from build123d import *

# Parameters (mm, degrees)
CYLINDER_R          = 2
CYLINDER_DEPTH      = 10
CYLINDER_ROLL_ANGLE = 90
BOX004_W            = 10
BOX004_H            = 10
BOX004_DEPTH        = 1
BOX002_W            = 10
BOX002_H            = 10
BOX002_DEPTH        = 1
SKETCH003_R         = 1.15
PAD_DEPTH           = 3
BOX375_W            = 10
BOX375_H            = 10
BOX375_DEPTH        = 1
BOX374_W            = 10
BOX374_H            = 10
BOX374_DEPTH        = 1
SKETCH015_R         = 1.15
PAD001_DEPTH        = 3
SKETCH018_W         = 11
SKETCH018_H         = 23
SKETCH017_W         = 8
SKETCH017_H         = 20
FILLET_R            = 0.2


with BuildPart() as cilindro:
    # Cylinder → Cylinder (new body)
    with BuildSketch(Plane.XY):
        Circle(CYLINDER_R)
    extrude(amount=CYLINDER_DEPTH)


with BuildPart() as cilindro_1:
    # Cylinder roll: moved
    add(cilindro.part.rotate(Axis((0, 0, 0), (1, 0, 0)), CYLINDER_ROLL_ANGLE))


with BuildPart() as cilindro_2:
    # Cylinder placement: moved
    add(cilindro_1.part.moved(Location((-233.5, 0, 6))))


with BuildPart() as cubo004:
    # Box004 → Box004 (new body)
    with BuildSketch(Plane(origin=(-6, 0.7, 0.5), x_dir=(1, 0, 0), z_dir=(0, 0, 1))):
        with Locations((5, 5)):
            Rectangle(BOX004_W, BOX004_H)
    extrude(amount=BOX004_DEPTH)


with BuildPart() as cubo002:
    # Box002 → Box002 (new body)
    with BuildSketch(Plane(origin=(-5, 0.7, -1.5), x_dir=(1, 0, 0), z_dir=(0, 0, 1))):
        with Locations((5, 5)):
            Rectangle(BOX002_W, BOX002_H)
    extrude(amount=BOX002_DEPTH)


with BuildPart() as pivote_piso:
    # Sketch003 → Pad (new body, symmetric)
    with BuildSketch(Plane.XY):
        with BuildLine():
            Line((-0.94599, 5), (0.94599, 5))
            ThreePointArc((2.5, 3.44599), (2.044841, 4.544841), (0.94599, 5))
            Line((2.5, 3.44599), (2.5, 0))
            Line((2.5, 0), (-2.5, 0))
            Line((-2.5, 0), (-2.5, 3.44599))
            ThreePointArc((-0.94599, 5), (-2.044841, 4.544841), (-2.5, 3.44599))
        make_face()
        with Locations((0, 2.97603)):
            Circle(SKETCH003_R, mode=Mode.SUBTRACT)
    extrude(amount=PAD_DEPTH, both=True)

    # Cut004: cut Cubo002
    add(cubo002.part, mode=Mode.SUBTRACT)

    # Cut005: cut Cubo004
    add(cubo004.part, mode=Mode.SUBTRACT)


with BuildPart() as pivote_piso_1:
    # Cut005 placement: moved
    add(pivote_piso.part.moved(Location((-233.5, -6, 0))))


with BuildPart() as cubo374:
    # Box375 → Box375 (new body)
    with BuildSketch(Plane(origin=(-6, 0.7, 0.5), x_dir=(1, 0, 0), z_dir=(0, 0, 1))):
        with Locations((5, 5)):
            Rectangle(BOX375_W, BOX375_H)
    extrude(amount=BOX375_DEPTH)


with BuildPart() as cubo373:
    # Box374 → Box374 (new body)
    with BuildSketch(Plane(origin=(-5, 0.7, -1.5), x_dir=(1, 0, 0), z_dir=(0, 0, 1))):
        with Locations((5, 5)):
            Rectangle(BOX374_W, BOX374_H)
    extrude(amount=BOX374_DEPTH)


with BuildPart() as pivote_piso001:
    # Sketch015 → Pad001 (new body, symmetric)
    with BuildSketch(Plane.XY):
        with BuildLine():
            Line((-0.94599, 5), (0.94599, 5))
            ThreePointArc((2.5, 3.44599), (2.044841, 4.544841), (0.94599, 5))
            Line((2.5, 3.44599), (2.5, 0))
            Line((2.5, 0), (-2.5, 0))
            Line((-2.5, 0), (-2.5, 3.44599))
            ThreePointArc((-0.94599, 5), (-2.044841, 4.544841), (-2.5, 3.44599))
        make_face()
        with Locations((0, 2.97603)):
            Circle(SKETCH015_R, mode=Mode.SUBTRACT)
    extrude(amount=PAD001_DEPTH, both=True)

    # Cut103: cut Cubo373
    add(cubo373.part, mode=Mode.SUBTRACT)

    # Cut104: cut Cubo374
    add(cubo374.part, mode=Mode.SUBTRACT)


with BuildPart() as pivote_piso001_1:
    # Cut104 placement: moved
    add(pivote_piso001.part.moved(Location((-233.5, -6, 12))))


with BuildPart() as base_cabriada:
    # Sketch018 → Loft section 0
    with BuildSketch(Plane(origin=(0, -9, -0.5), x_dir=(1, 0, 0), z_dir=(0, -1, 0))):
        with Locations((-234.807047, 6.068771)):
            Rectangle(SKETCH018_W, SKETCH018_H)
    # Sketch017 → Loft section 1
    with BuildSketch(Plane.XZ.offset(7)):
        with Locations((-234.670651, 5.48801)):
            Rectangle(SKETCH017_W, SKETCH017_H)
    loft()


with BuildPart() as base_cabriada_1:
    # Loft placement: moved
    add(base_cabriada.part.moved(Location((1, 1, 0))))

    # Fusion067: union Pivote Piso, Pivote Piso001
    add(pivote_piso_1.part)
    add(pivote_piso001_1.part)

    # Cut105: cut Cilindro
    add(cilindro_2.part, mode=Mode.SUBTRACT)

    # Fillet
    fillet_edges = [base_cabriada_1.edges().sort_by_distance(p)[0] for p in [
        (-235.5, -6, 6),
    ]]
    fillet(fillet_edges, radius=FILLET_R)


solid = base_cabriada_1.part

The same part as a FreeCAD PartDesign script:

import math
import FreeCAD as App
import Part
import Sketcher
from FreeCAD import Vector


def edges_at(feature, points):
    """Names of the edges that pass closest to the given points."""
    edges = feature.Shape.Edges
    near = lambda p: min(range(len(edges)), key=lambda i: edges[i].distToShape(Part.Vertex(*p))[0])
    return sorted({f"Edge{near(p) + 1}" for p in points})


def add_polygon(sketch, points):
    """Adds a closed chain of lines whose ends are joined by coincident constraints."""
    first, n = sketch.GeometryCount, len(points)
    for a, b in zip(points, points[1:] + points[:1]):
        sketch.addGeometry(Part.LineSegment(App.Vector(*a, 0), App.Vector(*b, 0)), False)
    for i in range(n):
        sketch.addConstraint(Sketcher.Constraint("Coincident", first + i, 2, first + (i + 1) % n, 1))

doc = App.newDocument("Part")
body = doc.addObject("PartDesign::Body", "Body")

sketch1 = doc.addObject("Sketcher::SketchObject", "Sketch")
body.addObject(sketch1)
sketch1.AttachmentSupport = (doc.XY_Plane, [""])
sketch1.MapMode = "FlatFace"
sketch1.addGeometry(Part.Circle(Vector(0, 0, 0), Vector(0, 0, 1), 2), False)
sketch1.addConstraint([
    Sketcher.Constraint("Coincident", 0, 3, -1, 1),
    Sketcher.Constraint("Diameter", 0, 4.0),
])
pad1 = doc.addObject("PartDesign::Pad", "Pad")
body.addObject(pad1)
pad1.Profile = sketch1
pad1.Length = 10
body2 = doc.addObject("PartDesign::Body", "Body001")
doc.recompute()

body.Placement = App.Placement(Vector(0, 0, 0), App.Rotation(Vector(1, 0, 0), 90))
boolean = doc.addObject("PartDesign::Boolean", "Boolean")
body2.addObject(boolean)
boolean.Type = "Fuse"
boolean.addObjects([body])
body3 = doc.addObject("PartDesign::Body", "Body002")
doc.recompute()

body2.Placement = App.Placement(Vector(-233.5, 0, 6), App.Rotation(Vector(0, 0, 1), 0))
boolean2 = doc.addObject("PartDesign::Boolean", "Boolean001")
body3.addObject(boolean2)
boolean2.Type = "Fuse"
boolean2.addObjects([body2])
body4 = doc.addObject("PartDesign::Body", "Body003")

sketch2 = doc.addObject("Sketcher::SketchObject", "Sketch001")
body4.addObject(sketch2)
sketch2.AttachmentSupport = (doc.getObject("XY_Plane003"), [""])
sketch2.MapMode = "FlatFace"
sketch2.AttachmentOffset = App.Placement(Vector(0, 0, 0.5), App.Rotation())
add_polygon(sketch2, [(-6, 11), (-6, 1), (4, 1), (4, 11)])
sketch2.addConstraint([
    Sketcher.Constraint("Vertical", 0),
    Sketcher.Constraint("Horizontal", 1),
    Sketcher.Constraint("Vertical", 2),
    Sketcher.Constraint("Horizontal", 3),
    Sketcher.Constraint("Equal", 3, 0),
    Sketcher.Constraint("DistanceX", 1, 1, 1, 2, 10.0),
    Sketcher.Constraint("DistanceX", 0, 2, -1, 1, 6.0),
    Sketcher.Constraint("DistanceY", -1, 1, 0, 2, 0.7),
])
pad2 = doc.addObject("PartDesign::Pad", "Pad001")
body4.addObject(pad2)
pad2.Profile = sketch2
pad2.Length = 1
body5 = doc.addObject("PartDesign::Body", "Body004")

sketch3 = doc.addObject("Sketcher::SketchObject", "Sketch002")
body5.addObject(sketch3)
sketch3.AttachmentSupport = (doc.getObject("XY_Plane004"), [""])
sketch3.MapMode = "FlatFace"
sketch3.AttachmentOffset = App.Placement(Vector(0, 0, -1.5), App.Rotation())
add_polygon(sketch3, [(-5, 11), (-5, 1), (5, 1), (5, 11)])
sketch3.addConstraint([
    Sketcher.Constraint("Vertical", 0),
    Sketcher.Constraint("Horizontal", 1),
    Sketcher.Constraint("Vertical", 2),
    Sketcher.Constraint("Horizontal", 3),
    Sketcher.Constraint("Equal", 3, 0),
    Sketcher.Constraint("DistanceX", 1, 1, 1, 2, 10.0),
    Sketcher.Constraint("DistanceX", 0, 2, -1, 1, 5.0),
    Sketcher.Constraint("DistanceY", -1, 1, 0, 2, 0.7),
])
pad3 = doc.addObject("PartDesign::Pad", "Pad002")
body5.addObject(pad3)
pad3.Profile = sketch3
pad3.Length = 1
body6 = doc.addObject("PartDesign::Body", "Body005")

sketch4 = doc.addObject("Sketcher::SketchObject", "Sketch003")
body6.addObject(sketch4)
sketch4.AttachmentSupport = (doc.getObject("XY_Plane005"), [""])
sketch4.MapMode = "FlatFace"
sketch4.addGeometry([
    Part.LineSegment(Vector(0.9, 5, 0), Vector(-0.9, 5, 0)),
    Part.ArcOfCircle(Part.Circle(Vector(-0.9, 3.4, 0), Vector(0, 0, 1), 1.6), math.radians(90), math.radians(180)),
    Part.LineSegment(Vector(-2.5, 3.4, 0), Vector(-2.5, 0, 0)),
    Part.LineSegment(Vector(-2.5, 0, 0), Vector(2.5, 0, 0)),
    Part.LineSegment(Vector(2.5, 0, 0), Vector(2.5, 3.4, 0)),
    Part.ArcOfCircle(Part.Circle(Vector(0.9, 3.4, 0), Vector(0, 0, 1), 1.6), math.radians(0), math.radians(90)),
    Part.Circle(Vector(0, 3, 0), Vector(0, 0, 1), 1.1),
], False)
sketch4.addConstraint([
    Sketcher.Constraint("Tangent", 0, 2, 1, 1),
    Sketcher.Constraint("Tangent", 1, 2, 2, 1),
    Sketcher.Constraint("Coincident", 2, 2, 3, 1),
    Sketcher.Constraint("Coincident", 3, 2, 4, 1),
    Sketcher.Constraint("Tangent", 4, 2, 5, 1),
    Sketcher.Constraint("Tangent", 5, 2, 0, 1),
    Sketcher.Constraint("Horizontal", 0),
    Sketcher.Constraint("Vertical", 2),
    Sketcher.Constraint("Horizontal", 3),
    Sketcher.Constraint("Vertical", 4),
    Sketcher.Constraint("Equal", 1, 5),
    Sketcher.Constraint("Symmetric", 2, 2, 3, 2, -1, 1),
    Sketcher.Constraint("PointOnObject", 6, 3, -2),
    Sketcher.Constraint("Diameter", 6, 2.3),
    Sketcher.Constraint("DistanceX", 3, 1, 3, 2, 5.0),
    Sketcher.Constraint("DistanceY", -1, 1, 0, 2, 5.0),
    Sketcher.Constraint("Radius", 1, 1.55401),
    Sketcher.Constraint("DistanceY", -1, 1, 6, 3, 2.97603),
])
pad4 = doc.addObject("PartDesign::Pad", "Pad003")
body6.addObject(pad4)
pad4.Profile = sketch4
pad4.Length = 6
pad4.Midplane = True
doc.recompute()

boolean3 = doc.addObject("PartDesign::Boolean", "Boolean002")
body6.addObject(boolean3)
boolean3.Type = "Cut"
boolean3.addObjects([body5])
doc.recompute()

boolean4 = doc.addObject("PartDesign::Boolean", "Boolean003")
body6.addObject(boolean4)
boolean4.Type = "Cut"
boolean4.addObjects([body4])
body7 = doc.addObject("PartDesign::Body", "Body006")
doc.recompute()

body6.Placement = App.Placement(Vector(-233.5, -6, 0), App.Rotation(Vector(0, 0, 1), 0))
boolean5 = doc.addObject("PartDesign::Boolean", "Boolean004")
body7.addObject(boolean5)
boolean5.Type = "Fuse"
boolean5.addObjects([body6])
body8 = doc.addObject("PartDesign::Body", "Body007")

sketch5 = doc.addObject("Sketcher::SketchObject", "Sketch004")
body8.addObject(sketch5)
sketch5.AttachmentSupport = (doc.getObject("XY_Plane007"), [""])
sketch5.MapMode = "FlatFace"
sketch5.AttachmentOffset = App.Placement(Vector(0, 0, 0.5), App.Rotation())
add_polygon(sketch5, [(-6, 11), (-6, 1), (4, 1), (4, 11)])
sketch5.addConstraint([
    Sketcher.Constraint("Vertical", 0),
    Sketcher.Constraint("Horizontal", 1),
    Sketcher.Constraint("Vertical", 2),
    Sketcher.Constraint("Horizontal", 3),
    Sketcher.Constraint("Equal", 3, 0),
    Sketcher.Constraint("DistanceX", 1, 1, 1, 2, 10.0),
    Sketcher.Constraint("DistanceX", 0, 2, -1, 1, 6.0),
    Sketcher.Constraint("DistanceY", -1, 1, 0, 2, 0.7),
])
pad5 = doc.addObject("PartDesign::Pad", "Pad004")
body8.addObject(pad5)
pad5.Profile = sketch5
pad5.Length = 1
body9 = doc.addObject("PartDesign::Body", "Body008")

sketch6 = doc.addObject("Sketcher::SketchObject", "Sketch005")
body9.addObject(sketch6)
sketch6.AttachmentSupport = (doc.getObject("XY_Plane008"), [""])
sketch6.MapMode = "FlatFace"
sketch6.AttachmentOffset = App.Placement(Vector(0, 0, -1.5), App.Rotation())
add_polygon(sketch6, [(-5, 11), (-5, 1), (5, 1), (5, 11)])
sketch6.addConstraint([
    Sketcher.Constraint("Vertical", 0),
    Sketcher.Constraint("Horizontal", 1),
    Sketcher.Constraint("Vertical", 2),
    Sketcher.Constraint("Horizontal", 3),
    Sketcher.Constraint("Equal", 3, 0),
    Sketcher.Constraint("DistanceX", 1, 1, 1, 2, 10.0),
    Sketcher.Constraint("DistanceX", 0, 2, -1, 1, 5.0),
    Sketcher.Constraint("DistanceY", -1, 1, 0, 2, 0.7),
])
pad6 = doc.addObject("PartDesign::Pad", "Pad005")
body9.addObject(pad6)
pad6.Profile = sketch6
pad6.Length = 1
body10 = doc.addObject("PartDesign::Body", "Body009")

sketch7 = doc.addObject("Sketcher::SketchObject", "Sketch006")
body10.addObject(sketch7)
sketch7.AttachmentSupport = (doc.getObject("XY_Plane009"), [""])
sketch7.MapMode = "FlatFace"
sketch7.addGeometry([
    Part.LineSegment(Vector(0.9, 5, 0), Vector(-0.9, 5, 0)),
    Part.ArcOfCircle(Part.Circle(Vector(-0.9, 3.4, 0), Vector(0, 0, 1), 1.6), math.radians(90), math.radians(180)),
    Part.LineSegment(Vector(-2.5, 3.4, 0), Vector(-2.5, 0, 0)),
    Part.LineSegment(Vector(-2.5, 0, 0), Vector(2.5, 0, 0)),
    Part.LineSegment(Vector(2.5, 0, 0), Vector(2.5, 3.4, 0)),
    Part.ArcOfCircle(Part.Circle(Vector(0.9, 3.4, 0), Vector(0, 0, 1), 1.6), math.radians(0), math.radians(90)),
    Part.Circle(Vector(0, 3, 0), Vector(0, 0, 1), 1.1),
], False)
sketch7.addConstraint([
    Sketcher.Constraint("Tangent", 0, 2, 1, 1),
    Sketcher.Constraint("Tangent", 1, 2, 2, 1),
    Sketcher.Constraint("Coincident", 2, 2, 3, 1),
    Sketcher.Constraint("Coincident", 3, 2, 4, 1),
    Sketcher.Constraint("Tangent", 4, 2, 5, 1),
    Sketcher.Constraint("Tangent", 5, 2, 0, 1),
    Sketcher.Constraint("Horizontal", 0),
    Sketcher.Constraint("Vertical", 2),
    Sketcher.Constraint("Horizontal", 3),
    Sketcher.Constraint("Vertical", 4),
    Sketcher.Constraint("Equal", 1, 5),
    Sketcher.Constraint("Symmetric", 2, 2, 3, 2, -1, 1),
    Sketcher.Constraint("PointOnObject", 6, 3, -2),
    Sketcher.Constraint("Diameter", 6, 2.3),
    Sketcher.Constraint("DistanceX", 3, 1, 3, 2, 5.0),
    Sketcher.Constraint("DistanceY", -1, 1, 0, 2, 5.0),
    Sketcher.Constraint("Radius", 1, 1.55401),
    Sketcher.Constraint("DistanceY", -1, 1, 6, 3, 2.97603),
])
pad7 = doc.addObject("PartDesign::Pad", "Pad006")
body10.addObject(pad7)
pad7.Profile = sketch7
pad7.Length = 6
pad7.Midplane = True
doc.recompute()

boolean6 = doc.addObject("PartDesign::Boolean", "Boolean005")
body10.addObject(boolean6)
boolean6.Type = "Cut"
boolean6.addObjects([body9])
doc.recompute()

boolean7 = doc.addObject("PartDesign::Boolean", "Boolean006")
body10.addObject(boolean7)
boolean7.Type = "Cut"
boolean7.addObjects([body8])
body11 = doc.addObject("PartDesign::Body", "Body010")
doc.recompute()

body10.Placement = App.Placement(Vector(-233.5, -6, 12), App.Rotation(Vector(0, 0, 1), 0))
boolean8 = doc.addObject("PartDesign::Boolean", "Boolean007")
body11.addObject(boolean8)
boolean8.Type = "Fuse"
boolean8.addObjects([body10])
body12 = doc.addObject("PartDesign::Body", "Body011")

sketch8 = doc.addObject("Sketcher::SketchObject", "Sketch007")
body12.addObject(sketch8)
sketch8.AttachmentSupport = (doc.getObject("XZ_Plane011"), [""])
sketch8.MapMode = "FlatFace"
sketch8.AttachmentOffset = App.Placement(Vector(0, 0, 9), App.Rotation())
add_polygon(sketch8, [(-240, 17), (-240, -6), (-229, -6), (-229, 17)])
sketch8.addConstraint([
    Sketcher.Constraint("Vertical", 0),
    Sketcher.Constraint("Horizontal", 1),
    Sketcher.Constraint("Vertical", 2),
    Sketcher.Constraint("Horizontal", 3),
    Sketcher.Constraint("DistanceX", 1, 1, 1, 2, 11.0),
    Sketcher.Constraint("DistanceY", 0, 2, 0, 1, 23.0),
    Sketcher.Constraint("DistanceY", 0, 2, -1, 1, 5.931229),
    Sketcher.Constraint("DistanceX", 0, 2, -1, 1, 240.307047),
])

sketch9 = doc.addObject("Sketcher::SketchObject", "Sketch008")
body12.addObject(sketch9)
sketch9.AttachmentSupport = (doc.getObject("XZ_Plane011"), [""])
sketch9.MapMode = "FlatFace"
sketch9.AttachmentOffset = App.Placement(Vector(0, 0, 7), App.Rotation())
add_polygon(sketch9, [(-239, 15), (-239, -5), (-231, -5), (-231, 15)])
sketch9.addConstraint([
    Sketcher.Constraint("Vertical", 0),
    Sketcher.Constraint("Horizontal", 1),
    Sketcher.Constraint("Vertical", 2),
    Sketcher.Constraint("Horizontal", 3),
    Sketcher.Constraint("DistanceX", 1, 1, 1, 2, 8.0),
    Sketcher.Constraint("DistanceY", 0, 2, 0, 1, 20.0),
    Sketcher.Constraint("DistanceX", 0, 2, -1, 1, 238.670651),
    Sketcher.Constraint("DistanceY", 0, 2, -1, 1, 4.51199),
])

additiveloft = doc.addObject("PartDesign::AdditiveLoft", "AdditiveLoft")
body12.addObject(additiveloft)
additiveloft.Profile = sketch8
additiveloft.Sections = [sketch9]
body13 = doc.addObject("PartDesign::Body", "Body012")
doc.recompute()

body12.Placement = App.Placement(Vector(1, 1, 0), App.Rotation(Vector(0, 0, 1), 0))
boolean9 = doc.addObject("PartDesign::Boolean", "Boolean008")
body13.addObject(boolean9)
boolean9.Type = "Fuse"
boolean9.addObjects([body12])
doc.recompute()

boolean10 = doc.addObject("PartDesign::Boolean", "Boolean009")
body13.addObject(boolean10)
boolean10.Type = "Fuse"
boolean10.addObjects([body7])
doc.recompute()

boolean11 = doc.addObject("PartDesign::Boolean", "Boolean010")
body13.addObject(boolean11)
boolean11.Type = "Fuse"
boolean11.addObjects([body11])
doc.recompute()

boolean12 = doc.addObject("PartDesign::Boolean", "Boolean011")
body13.addObject(boolean12)
boolean12.Type = "Cut"
boolean12.addObjects([body3])
doc.recompute()

fillet = doc.addObject("PartDesign::Fillet", "Fillet")
body13.addObject(fillet)
fillet.Base = (boolean12, edges_at(boolean12, [(-235.5, -6, 6)]))
fillet.Radius = 0.2

doc.recompute()
